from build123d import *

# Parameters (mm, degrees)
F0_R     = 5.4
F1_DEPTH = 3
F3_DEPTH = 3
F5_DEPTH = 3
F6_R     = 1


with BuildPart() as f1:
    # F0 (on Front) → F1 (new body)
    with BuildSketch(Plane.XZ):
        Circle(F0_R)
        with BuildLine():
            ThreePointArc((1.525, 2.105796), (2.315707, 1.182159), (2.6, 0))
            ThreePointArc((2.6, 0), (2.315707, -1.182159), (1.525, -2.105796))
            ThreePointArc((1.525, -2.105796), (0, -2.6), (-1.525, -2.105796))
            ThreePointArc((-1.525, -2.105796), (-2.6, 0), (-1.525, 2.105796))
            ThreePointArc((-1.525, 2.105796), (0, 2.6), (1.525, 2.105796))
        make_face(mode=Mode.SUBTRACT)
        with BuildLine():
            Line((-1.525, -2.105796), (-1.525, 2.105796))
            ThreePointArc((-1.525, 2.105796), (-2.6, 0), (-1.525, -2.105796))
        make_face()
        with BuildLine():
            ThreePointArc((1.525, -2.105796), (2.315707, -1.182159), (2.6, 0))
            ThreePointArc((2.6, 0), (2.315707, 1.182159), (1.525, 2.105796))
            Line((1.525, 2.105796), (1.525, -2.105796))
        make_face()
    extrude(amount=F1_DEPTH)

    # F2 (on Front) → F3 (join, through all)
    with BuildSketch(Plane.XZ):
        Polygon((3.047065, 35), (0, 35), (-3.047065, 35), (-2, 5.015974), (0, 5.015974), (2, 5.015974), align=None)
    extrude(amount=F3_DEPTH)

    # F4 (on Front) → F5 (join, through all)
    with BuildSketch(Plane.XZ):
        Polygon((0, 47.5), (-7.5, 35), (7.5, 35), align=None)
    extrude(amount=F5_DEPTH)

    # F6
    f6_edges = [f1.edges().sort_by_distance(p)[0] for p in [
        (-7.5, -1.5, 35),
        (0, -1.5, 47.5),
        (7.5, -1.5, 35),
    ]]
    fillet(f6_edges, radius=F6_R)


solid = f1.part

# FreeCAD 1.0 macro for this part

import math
import FreeCAD as App
import Part
import Sketcher
from FreeCAD import Vector
Q = App.Units.Quantity


def edges_at(feature, points):
    """Names of the edges that pass closest to the given points."""
    edges = feature.Shape.Edges
    near = lambda p: min(range(len(edges)), key=lambda i: edges[i].distToShape(Part.Vertex(*p))[0])
    return sorted({f"Edge{near(p) + 1}" for p in points})


def add_polygon(sketch, points):
    """Adds a closed chain of lines whose ends are joined by coincident constraints."""
    first, n = sketch.GeometryCount, len(points)
    for a, b in zip(points, points[1:] + points[:1]):
        sketch.addGeometry(Part.LineSegment(App.Vector(*a, 0), App.Vector(*b, 0)), False)
    for i in range(n):
        sketch.addConstraint(Sketcher.Constraint("Coincident", first + i, 2, first + (i + 1) % n, 1))

doc = App.newDocument("Part")
body = doc.addObject("PartDesign::Body", "Body")

# Sketch on XZ plane
sketch1 = body.newObject("Sketcher::SketchObject", "Sketch")
sketch1.AttachmentSupport = (doc.getObject("XZ_Plane"), [""])
sketch1.MapMode = "FlatFace"
sketch1.addGeometry([
    Part.Circle(Vector(0, 0, 0), Vector(0, 0, 1), 5.4),  # 0
    Part.ArcOfCircle(Part.Circle(Vector(0, 0, 0), Vector(0, 0, 1), 2.6), math.radians(54), math.radians(126)),  # 1
    Part.LineSegment(Vector(1.5, 2.1, 0), Vector(1.5, -2.1, 0)),  # 2
    Part.ArcOfCircle(Part.Circle(Vector(0, 0, 0), Vector(0, 0, 1), 2.6), math.radians(-126), math.radians(-54)),  # 3
    Part.LineSegment(Vector(-1.5, -2.1, 0), Vector(-1.5, 2.1, 0)),  # 4
], False)
sketch1.addConstraint([
    Sketcher.Constraint("Coincident", 1, 1, 2, 1),
    Sketcher.Constraint("Coincident", 2, 2, 3, 2),
    Sketcher.Constraint("Coincident", 3, 1, 4, 1),
    Sketcher.Constraint("Coincident", 4, 2, 1, 2),
    Sketcher.Constraint("Vertical", 2),
    Sketcher.Constraint("Vertical", 4),
    Sketcher.Constraint("Coincident", 0, 3, -1, 1),
    Sketcher.Constraint("Coincident", 1, 3, -1, 1),
    Sketcher.Constraint("Coincident", 3, 3, -1, 1),
    Sketcher.Constraint("Equal", 1, 3),
    Sketcher.Constraint("Horizontal", 2, 2, 3, 1),
    Sketcher.Constraint("Diameter", 0, Q("10.8 mm")),
    Sketcher.Constraint("Radius", 1, Q("2.600002 mm")),
    Sketcher.Constraint("DistanceX", 3, 1, 2, 2, Q("3.05 mm")),
])
pad1 = body.newObject("PartDesign::Pad", "Pad")
pad1.Profile = sketch1
pad1.Length = 3

# Sketch on XZ plane
sketch2 = body.newObject("Sketcher::SketchObject", "Sketch001")
sketch2.AttachmentSupport = (doc.getObject("XZ_Plane"), [""])
sketch2.MapMode = "FlatFace"
add_polygon(sketch2, [(3, 35), (-3, 35), (-2, 5), (2, 5)])  # lines 0-3
sketch2.addConstraint([
    Sketcher.Constraint("Horizontal", 0),
    Sketcher.Constraint("Horizontal", 2),
    Sketcher.Constraint("Equal", 1, 3),
    Sketcher.Constraint("DistanceX", 2, 1, 2, 2, Q("4 mm")),
    Sketcher.Constraint("Angle", 1, Q("-88 deg")),
    Sketcher.Constraint("DistanceY", -1, 1, 0, 2, Q("35 mm")),
    Sketcher.Constraint("DistanceX", 1, 2, -1, 1, Q("2 mm")),
    Sketcher.Constraint("DistanceX", 0, 2, 0, 1, Q("6.09413 mm")),
])
pad2 = body.newObject("PartDesign::Pad", "Pad001")
pad2.Profile = sketch2
pad2.Length = 3

# Sketch on XZ plane
sketch3 = body.newObject("Sketcher::SketchObject", "Sketch002")
sketch3.AttachmentSupport = (doc.getObject("XZ_Plane"), [""])
sketch3.MapMode = "FlatFace"
add_polygon(sketch3, [(0, 48), (-8, 35), (8, 35)])  # lines 0-2
sketch3.addConstraint([
    Sketcher.Constraint("Horizontal", 1),
    Sketcher.Constraint("PointOnObject", 2, 2, -2),
    Sketcher.Constraint("Equal", 0, 2),
    Sketcher.Constraint("DistanceX", 1, 1, 1, 2, Q("15 mm")),
    Sketcher.Constraint("DistanceY", -1, 1, 0, 2, Q("35 mm")),
    Sketcher.Constraint("DistanceY", -1, 1, 2, 2, Q("47.5 mm")),
])
pad3 = body.newObject("PartDesign::Pad", "Pad002")
pad3.Profile = sketch3
pad3.Length = 3
doc.recompute()

fillet = body.newObject("PartDesign::Fillet", "Fillet")
fillet.Base = (pad3, edges_at(pad3, [(-7.5, -1.5, 35), (0, -1.5, 47.5), (7.5, -1.5, 35)]))
fillet.Radius = 1

doc.recompute()
